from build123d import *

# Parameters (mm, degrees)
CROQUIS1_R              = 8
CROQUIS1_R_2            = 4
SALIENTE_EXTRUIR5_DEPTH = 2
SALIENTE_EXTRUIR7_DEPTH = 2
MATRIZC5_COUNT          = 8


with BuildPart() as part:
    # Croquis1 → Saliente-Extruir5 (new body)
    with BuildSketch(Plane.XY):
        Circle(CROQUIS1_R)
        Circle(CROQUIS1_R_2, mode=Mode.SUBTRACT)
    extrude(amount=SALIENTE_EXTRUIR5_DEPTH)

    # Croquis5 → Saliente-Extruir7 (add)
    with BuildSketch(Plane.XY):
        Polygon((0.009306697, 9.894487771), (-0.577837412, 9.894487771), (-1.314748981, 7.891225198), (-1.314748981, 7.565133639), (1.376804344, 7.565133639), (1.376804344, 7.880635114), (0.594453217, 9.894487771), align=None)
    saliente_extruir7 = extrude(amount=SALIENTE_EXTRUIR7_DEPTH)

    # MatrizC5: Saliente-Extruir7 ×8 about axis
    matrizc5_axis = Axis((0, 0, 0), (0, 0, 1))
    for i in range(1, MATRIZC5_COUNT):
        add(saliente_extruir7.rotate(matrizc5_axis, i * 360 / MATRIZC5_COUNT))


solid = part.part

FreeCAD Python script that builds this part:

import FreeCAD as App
import Part
import Sketcher
from FreeCAD import Vector

doc = App.newDocument("Part")
body = doc.addObject("PartDesign::Body", "Body")

sketch1 = doc.addObject("Sketcher::SketchObject", "Sketch")
body.addObject(sketch1)
sketch1.AttachmentSupport = (doc.XY_Plane, [""])
sketch1.MapMode = "FlatFace"
sketch1.addGeometry([
    Part.Circle(Vector(0, 0, 0), Vector(0, 0, 1), 8),
    Part.Circle(Vector(0, 0, 0), Vector(0, 0, 1), 4),
], False)
sketch1.addConstraint([
    Sketcher.Constraint("Coincident", 0, 3, -1, 1),
    Sketcher.Constraint("Coincident", 1, 3, -1, 1),
    Sketcher.Constraint("Diameter", 0, 16.0),
    Sketcher.Constraint("Diameter", 1, 8.0),
])
pad1 = doc.addObject("PartDesign::Pad", "Pad")
body.addObject(pad1)
pad1.Profile = sketch1
pad1.Length = 2

sketch2 = doc.addObject("Sketcher::SketchObject", "Sketch001")
body.addObject(sketch2)
sketch2.AttachmentSupport = (doc.XY_Plane, [""])
sketch2.MapMode = "FlatFace"
sketch2.addGeometry([
    Part.LineSegment(Vector(-0.577837, 9.894488, 0), Vector(-1.314749, 7.891225, 0)),
    Part.LineSegment(Vector(-1.314749, 7.891225, 0), Vector(-1.314749, 7.565134, 0)),
    Part.LineSegment(Vector(-1.314749, 7.565134, 0), Vector(1.376804, 7.565134, 0)),
    Part.LineSegment(Vector(1.376804, 7.565134, 0), Vector(1.376804, 7.880635, 0)),
    Part.LineSegment(Vector(1.376804, 7.880635, 0), Vector(0.594453, 9.894488, 0)),
    Part.LineSegment(Vector(0.594453, 9.894488, 0), Vector(-0.577837, 9.894488, 0)),
], False)
sketch2.addConstraint([
    Sketcher.Constraint("Coincident", 0, 2, 1, 1),
    Sketcher.Constraint("Coincident", 1, 2, 2, 1),
    Sketcher.Constraint("Coincident", 2, 2, 3, 1),
    Sketcher.Constraint("Coincident", 3, 2, 4, 1),
    Sketcher.Constraint("Coincident", 4, 2, 5, 1),
    Sketcher.Constraint("Coincident", 5, 2, 0, 1),
    Sketcher.Constraint("Vertical", 1),
    Sketcher.Constraint("Horizontal", 2),
    Sketcher.Constraint("Vertical", 3),
    Sketcher.Constraint("Horizontal", 5),
    Sketcher.Constraint("DistanceY", 3, 1, 3, 2, 0.315501),
    Sketcher.Constraint("DistanceX", 5, 2, 5, 1, 1.172291),
    Sketcher.Constraint("DistanceY", 1, 2, 1, 1, 0.326092),
    Sketcher.Constraint("Distance", 4, 2.16048),
    Sketcher.Constraint("DistanceX", 2, 1, 2, 2, 2.691553),
    Sketcher.Constraint("DistanceX", 0, 2, -1, 1, 1.314749),
    Sketcher.Constraint("DistanceX", 4, 2, 3, 2, 0.782351),
    Sketcher.Constraint("DistanceY", -1, 1, 0, 2, 7.891225),
])
pad2 = doc.addObject("PartDesign::Pad", "Pad001")
body.addObject(pad2)
pad2.Profile = sketch2
pad2.Length = 2
doc.recompute()

polarpattern = doc.addObject("PartDesign::PolarPattern", "PolarPattern")
body.addObject(polarpattern)
polarpattern.Originals = [pad2]
polarpattern.Axis = (doc.Z_Axis, [""])
polarpattern.Angle = 360
polarpattern.Occurrences = 8
body.Tip = polarpattern

doc.recompute()
